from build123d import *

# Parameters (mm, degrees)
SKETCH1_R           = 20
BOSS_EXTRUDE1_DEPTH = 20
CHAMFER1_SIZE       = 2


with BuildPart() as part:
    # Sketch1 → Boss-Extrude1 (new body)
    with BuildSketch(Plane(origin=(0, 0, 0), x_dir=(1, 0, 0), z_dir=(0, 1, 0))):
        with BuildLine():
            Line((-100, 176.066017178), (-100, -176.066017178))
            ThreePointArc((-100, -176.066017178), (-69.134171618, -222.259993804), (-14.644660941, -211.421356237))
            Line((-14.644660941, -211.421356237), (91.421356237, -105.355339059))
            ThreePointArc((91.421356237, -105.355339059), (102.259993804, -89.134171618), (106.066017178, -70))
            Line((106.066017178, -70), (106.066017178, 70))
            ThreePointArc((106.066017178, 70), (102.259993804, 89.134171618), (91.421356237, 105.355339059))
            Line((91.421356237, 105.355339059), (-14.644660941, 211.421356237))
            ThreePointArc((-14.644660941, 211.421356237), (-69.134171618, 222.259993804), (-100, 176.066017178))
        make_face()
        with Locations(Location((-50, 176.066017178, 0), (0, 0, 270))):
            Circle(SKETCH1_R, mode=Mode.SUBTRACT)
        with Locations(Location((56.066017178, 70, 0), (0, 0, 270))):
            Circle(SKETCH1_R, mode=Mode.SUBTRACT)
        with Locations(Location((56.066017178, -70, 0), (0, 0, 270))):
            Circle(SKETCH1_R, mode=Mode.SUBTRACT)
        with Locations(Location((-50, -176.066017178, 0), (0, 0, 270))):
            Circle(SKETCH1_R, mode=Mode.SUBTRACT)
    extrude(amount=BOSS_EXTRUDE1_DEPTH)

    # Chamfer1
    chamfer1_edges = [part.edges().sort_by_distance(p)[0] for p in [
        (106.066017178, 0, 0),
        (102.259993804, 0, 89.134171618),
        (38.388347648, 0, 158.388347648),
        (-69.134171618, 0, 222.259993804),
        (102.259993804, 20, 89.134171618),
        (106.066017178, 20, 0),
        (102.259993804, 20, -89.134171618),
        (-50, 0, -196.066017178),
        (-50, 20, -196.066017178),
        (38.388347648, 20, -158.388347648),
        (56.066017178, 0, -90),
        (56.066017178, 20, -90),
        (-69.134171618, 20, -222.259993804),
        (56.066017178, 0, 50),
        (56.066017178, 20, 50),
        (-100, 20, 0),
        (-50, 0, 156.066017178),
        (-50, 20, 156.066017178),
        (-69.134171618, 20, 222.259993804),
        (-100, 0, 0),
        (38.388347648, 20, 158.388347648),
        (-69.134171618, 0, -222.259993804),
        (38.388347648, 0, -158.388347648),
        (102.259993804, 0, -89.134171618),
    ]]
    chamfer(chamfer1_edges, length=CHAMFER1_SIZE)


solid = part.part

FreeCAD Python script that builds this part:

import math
import FreeCAD as App
import Part
import Sketcher

V = App.Vector


def edges_at(feature, points):
    """Names of the edges that pass closest to the given points."""
    edges = feature.Shape.Edges
    near = lambda p: min(range(len(edges)), key=lambda i: edges[i].distToShape(Part.Vertex(*p))[0])
    return sorted({f"Edge{near(p) + 1}" for p in points})

doc = App.newDocument("Part")
body = doc.addObject("PartDesign::Body", "Body")

sketch1 = doc.addObject("Sketcher::SketchObject", "Sketch")
body.addObject(sketch1)
sketch1.AttachmentSupport = (doc.XZ_Plane, [""])
sketch1.MapMode = "FlatFace"
sketch1.addGeometry(Part.LineSegment(V(-100, -176.066017, 0), V(-100, 176.066017, 0)), False)
sketch1.addGeometry(Part.ArcOfCircle(Part.Circle(V(-50, 176.066017, 0), V(0, 0, 1), 50), math.radians(45), math.radians(180)), False)
sketch1.addGeometry(Part.LineSegment(V(-14.644661, 211.421356, 0), V(91.421356, 105.355339, 0)), False)
sketch1.addGeometry(Part.ArcOfCircle(Part.Circle(V(56.066017, 70, 0), V(0, 0, 1), 50), math.radians(0), math.radians(45)), False)
sketch1.addGeometry(Part.LineSegment(V(106.066017, 70, 0), V(106.066017, -70, 0)), False)
sketch1.addGeometry(Part.ArcOfCircle(Part.Circle(V(56.066017, -70, 0), V(0, 0, 1), 50), math.radians(-45), math.radians(0)), False)
sketch1.addGeometry(Part.LineSegment(V(91.421356, -105.355339, 0), V(-14.644661, -211.421356, 0)), False)
sketch1.addGeometry(Part.ArcOfCircle(Part.Circle(V(-50, -176.066017, 0), V(0, 0, 1), 50), math.radians(180), math.radians(315)), False)
sketch1.addGeometry(Part.Circle(V(-50, 176.066017, 0), V(0, 0, 1), 20), False)
sketch1.addGeometry(Part.Circle(V(56.066017, 70, 0), V(0, 0, 1), 20), False)
sketch1.addGeometry(Part.Circle(V(-50, -176.066017, 0), V(0, 0, 1), 20), False)
sketch1.addGeometry(Part.Circle(V(56.066017, -70, 0), V(0, 0, 1), 20), False)
sketch1.addConstraint(Sketcher.Constraint("Tangent", 0, 2, 1, 2))
sketch1.addConstraint(Sketcher.Constraint("Tangent", 1, 1, 2, 1))
sketch1.addConstraint(Sketcher.Constraint("Tangent", 2, 2, 3, 2))
sketch1.addConstraint(Sketcher.Constraint("Tangent", 3, 1, 4, 1))
sketch1.addConstraint(Sketcher.Constraint("Tangent", 4, 2, 5, 2))
sketch1.addConstraint(Sketcher.Constraint("Tangent", 5, 1, 6, 1))
sketch1.addConstraint(Sketcher.Constraint("Tangent", 6, 2, 7, 2))
sketch1.addConstraint(Sketcher.Constraint("Tangent", 7, 1, 0, 1))
sketch1.addConstraint(Sketcher.Constraint("Vertical", 0))
sketch1.addConstraint(Sketcher.Constraint("Vertical", 4))
sketch1.addConstraint(Sketcher.Constraint("Coincident", 8, 3, 1, 3))
sketch1.addConstraint(Sketcher.Constraint("Coincident", 9, 3, 3, 3))
sketch1.addConstraint(Sketcher.Constraint("Coincident", 10, 3, 7, 3))
sketch1.addConstraint(Sketcher.Constraint("Coincident", 11, 3, 5, 3))
sketch1.addConstraint(Sketcher.Constraint("Equal", 1, 3))
sketch1.addConstraint(Sketcher.Constraint("Equal", 3, 5))
sketch1.addConstraint(Sketcher.Constraint("Equal", 5, 7))
sketch1.addConstraint(Sketcher.Constraint("Equal", 8, 9))
sketch1.addConstraint(Sketcher.Constraint("Equal", 9, 10))
sketch1.addConstraint(Sketcher.Constraint("Equal", 10, 11))
sketch1.addConstraint(Sketcher.Constraint("Symmetric", 2, 2, 5, 1, -1))
sketch1.addConstraint(Sketcher.Constraint("Perpendicular", 2, 6))
sketch1.addConstraint(Sketcher.Constraint("Diameter", 8, 40.0))
sketch1.addConstraint(Sketcher.Constraint("Radius", 1, 50.0))
sketch1.addConstraint(Sketcher.Constraint("DistanceY", 4, 2, 4, 1, 140.0))
sketch1.addConstraint(Sketcher.Constraint("Distance", 2, 150.0))
sketch1.addConstraint(Sketcher.Constraint("DistanceX", 1, 3, -1, 1, 50.0))
pad1 = doc.addObject("PartDesign::Pad", "Pad")
body.addObject(pad1)
pad1.Profile = sketch1
pad1.Length = 20
pad1.Reversed = True
doc.recompute()

chamfer = doc.addObject("PartDesign::Chamfer", "Chamfer")
body.addObject(chamfer)
chamfer.Base = (pad1, edges_at(pad1, [
    (106.066, 0, 0),
    (102.26, 0, 89.134),
    (38.388, 0, 158.388),
    (-69.134, 0, 222.26),
    (102.26, 20, 89.134),
    (106.066, 20, 0),
    (102.26, 20, -89.134),
    (-50, 0, -196.066),
    (-50, 20, -196.066),
    (38.388, 20, -158.388),
    (56.066, 0, -90),
    (56.066, 20, -90),
    (-69.134, 20, -222.26),
    (56.066, 0, 50),
    (56.066, 20, 50),
    (-100, 20, 0),
    (-50, 0, 156.066),
    (-50, 20, 156.066),
    (-69.134, 20, 222.26),
    (-100, 0, 0),
    (38.388, 20, 158.388),
    (-69.134, 0, -222.26),
    (38.388, 0, -158.388),
    (102.26, 0, -89.134),
]))
chamfer.Size = 2

doc.recompute()
